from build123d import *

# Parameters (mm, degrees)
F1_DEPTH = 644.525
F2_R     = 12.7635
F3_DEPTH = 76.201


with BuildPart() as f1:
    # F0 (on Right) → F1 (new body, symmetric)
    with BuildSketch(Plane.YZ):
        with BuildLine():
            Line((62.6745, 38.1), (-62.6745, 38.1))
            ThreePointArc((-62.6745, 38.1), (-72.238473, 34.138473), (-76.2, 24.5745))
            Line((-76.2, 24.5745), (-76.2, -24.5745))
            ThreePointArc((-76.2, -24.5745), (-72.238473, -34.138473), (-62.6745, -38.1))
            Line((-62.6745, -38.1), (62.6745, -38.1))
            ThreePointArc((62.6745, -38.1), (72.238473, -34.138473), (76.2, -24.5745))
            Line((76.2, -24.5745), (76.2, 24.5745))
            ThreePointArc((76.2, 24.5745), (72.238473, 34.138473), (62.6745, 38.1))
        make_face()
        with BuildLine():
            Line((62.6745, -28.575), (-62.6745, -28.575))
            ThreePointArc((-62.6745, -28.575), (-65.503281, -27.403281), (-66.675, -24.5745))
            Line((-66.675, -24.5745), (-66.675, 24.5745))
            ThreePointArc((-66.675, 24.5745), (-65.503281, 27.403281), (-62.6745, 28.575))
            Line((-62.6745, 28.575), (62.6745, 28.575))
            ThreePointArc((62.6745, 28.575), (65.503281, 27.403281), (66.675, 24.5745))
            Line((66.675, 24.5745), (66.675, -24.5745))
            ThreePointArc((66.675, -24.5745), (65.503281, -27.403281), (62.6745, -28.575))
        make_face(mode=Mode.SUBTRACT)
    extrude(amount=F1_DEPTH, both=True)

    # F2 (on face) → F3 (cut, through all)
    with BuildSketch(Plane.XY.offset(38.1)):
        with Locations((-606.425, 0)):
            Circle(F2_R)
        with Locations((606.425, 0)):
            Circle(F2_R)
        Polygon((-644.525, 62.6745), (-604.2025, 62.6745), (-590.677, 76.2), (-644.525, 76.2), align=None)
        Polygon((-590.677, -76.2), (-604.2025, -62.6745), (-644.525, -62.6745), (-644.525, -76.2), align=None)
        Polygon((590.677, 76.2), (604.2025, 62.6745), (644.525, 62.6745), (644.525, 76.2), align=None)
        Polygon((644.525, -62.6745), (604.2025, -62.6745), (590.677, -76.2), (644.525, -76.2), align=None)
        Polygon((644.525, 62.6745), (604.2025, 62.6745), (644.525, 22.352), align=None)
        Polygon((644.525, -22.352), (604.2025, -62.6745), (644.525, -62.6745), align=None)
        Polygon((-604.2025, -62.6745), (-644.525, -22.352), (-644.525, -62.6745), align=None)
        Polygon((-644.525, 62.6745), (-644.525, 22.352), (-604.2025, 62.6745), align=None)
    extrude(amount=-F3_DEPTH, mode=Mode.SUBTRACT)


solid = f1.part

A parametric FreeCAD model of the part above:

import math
import FreeCAD as App
import Part
import Sketcher
from FreeCAD import Vector
Q = App.Units.Quantity


def add_polygon(sketch, points):
    """Adds a closed chain of lines whose ends are joined by coincident constraints."""
    first, n = sketch.GeometryCount, len(points)
    for a, b in zip(points, points[1:] + points[:1]):
        sketch.addGeometry(Part.LineSegment(App.Vector(*a, 0), App.Vector(*b, 0)), False)
    for i in range(n):
        sketch.addConstraint(Sketcher.Constraint("Coincident", first + i, 2, first + (i + 1) % n, 1))

doc = App.newDocument("Part")
body = doc.addObject("PartDesign::Body", "Body")

# Sketch on YZ plane
sketch1 = doc.addObject("Sketcher::SketchObject", "Sketch")
body.addObject(sketch1)
sketch1.AttachmentSupport = (doc.YZ_Plane, [""])
sketch1.MapMode = "FlatFace"
sketch1.addGeometry([
    Part.LineSegment(Vector(62.6745, 38.1, 0), Vector(-62.6745, 38.1, 0)),  # 0
    Part.ArcOfCircle(Part.Circle(Vector(-62.674501, 24.574501, 0), Vector(0, 0, 1), 13.525499), math.radians(89.999997), math.radians(180.000003)),  # 1
    Part.LineSegment(Vector(-76.2, 24.5745, 0), Vector(-76.2, -24.5745, 0)),  # 2
    Part.ArcOfCircle(Part.Circle(Vector(-62.674501, -24.574501, 0), Vector(0, 0, 1), 13.525499), math.radians(179.999997), math.radians(270.000003)),  # 3
    Part.LineSegment(Vector(-62.6745, -38.1, 0), Vector(62.6745, -38.1, 0)),  # 4
    Part.ArcOfCircle(Part.Circle(Vector(62.674501, -24.574501, 0), Vector(0, 0, 1), 13.525499), math.radians(-90.000003), math.radians(0.000003)),  # 5
    Part.LineSegment(Vector(76.2, -24.5745, 0), Vector(76.2, 24.5745, 0)),  # 6
    Part.ArcOfCircle(Part.Circle(Vector(62.674501, 24.574501, 0), Vector(0, 0, 1), 13.525499), math.radians(-0.000003), math.radians(90.000003)),  # 7
    Part.ArcOfCircle(Part.Circle(Vector(62.674501, -24.574501, 0), Vector(0, 0, 1), 4.000499), math.radians(-90.000016), math.radians(0.000016)),  # 8
    Part.LineSegment(Vector(62.6745, -28.575, 0), Vector(-62.6745, -28.575, 0)),  # 9
    Part.ArcOfCircle(Part.Circle(Vector(-62.674501, -24.574501, 0), Vector(0, 0, 1), 4.000499), math.radians(179.999984), math.radians(270.000016)),  # 10
    Part.LineSegment(Vector(-66.675, -24.5745, 0), Vector(-66.675, 24.5745, 0)),  # 11
    Part.ArcOfCircle(Part.Circle(Vector(-62.674501, 24.574501, 0), Vector(0, 0, 1), 4.000499), math.radians(89.999984), math.radians(180.000016)),  # 12
    Part.LineSegment(Vector(-62.6745, 28.575, 0), Vector(62.6745, 28.575, 0)),  # 13
    Part.ArcOfCircle(Part.Circle(Vector(62.674501, 24.574501, 0), Vector(0, 0, 1), 4.000499), math.radians(-0.000016), math.radians(90.000016)),  # 14
    Part.LineSegment(Vector(66.675, 24.5745, 0), Vector(66.675, -24.5745, 0)),  # 15
], False)
sketch1.addConstraint([
    Sketcher.Constraint("Tangent", 0, 2, 1, 1),
    Sketcher.Constraint("Tangent", 1, 2, 2, 1),
    Sketcher.Constraint("Tangent", 2, 2, 3, 1),
    Sketcher.Constraint("Tangent", 3, 2, 4, 1),
    Sketcher.Constraint("Tangent", 4, 2, 5, 1),
    Sketcher.Constraint("Tangent", 5, 2, 6, 1),
    Sketcher.Constraint("Tangent", 6, 2, 7, 1),
    Sketcher.Constraint("Tangent", 7, 2, 0, 1),
    Sketcher.Constraint("Tangent", 8, 1, 9, 1),
    Sketcher.Constraint("Tangent", 9, 2, 10, 2),
    Sketcher.Constraint("Tangent", 10, 1, 11, 1),
    Sketcher.Constraint("Tangent", 11, 2, 12, 2),
    Sketcher.Constraint("Tangent", 12, 1, 13, 1),
    Sketcher.Constraint("Tangent", 13, 2, 14, 2),
    Sketcher.Constraint("Tangent", 14, 1, 15, 1),
    Sketcher.Constraint("Tangent", 15, 2, 8, 2),
    Sketcher.Constraint("Horizontal", 0),
    Sketcher.Constraint("Vertical", 2),
    Sketcher.Constraint("Horizontal", 4),
    Sketcher.Constraint("Vertical", 6),
    Sketcher.Constraint("Horizontal", 9),
    Sketcher.Constraint("Vertical", 11),
    Sketcher.Constraint("Horizontal", 13),
    Sketcher.Constraint("Vertical", 15),
    Sketcher.Constraint("Coincident", 8, 3, 5, 3),
    Sketcher.Constraint("Coincident", 10, 3, 3, 3),
    Sketcher.Constraint("Coincident", 12, 3, 1, 3),
    Sketcher.Constraint("Equal", 1, 3),
    Sketcher.Constraint("Equal", 3, 5),
    Sketcher.Constraint("Equal", 5, 7),
    Sketcher.Constraint("Equal", 12, 14),
    Sketcher.Constraint("Symmetric", 1, 3, 5, 3, -1, 1),
    Sketcher.Constraint("DistanceX", 1, 2, -1, 1, Q("3 in")),
    Sketcher.Constraint("DistanceY", -1, 1, 0, 2, Q("1.5 in")),
    Sketcher.Constraint("Radius", 1, Q("0.5325 in")),
    Sketcher.Constraint("Radius", 8, Q("0.1575 in")),
])
pad1 = doc.addObject("PartDesign::Pad", "Pad")
body.addObject(pad1)
pad1.Profile = sketch1
pad1.Length = Q("50.75 in")
pad1.Midplane = True

# Sketch on XY plane
sketch2 = doc.addObject("Sketcher::SketchObject", "Sketch001")
body.addObject(sketch2)
sketch2.AttachmentSupport = (doc.XY_Plane, [""])
sketch2.MapMode = "FlatFace"
sketch2.AttachmentOffset = App.Placement(Vector(0, 0, 1.5 * 25.4), App.Rotation())
sketch2.addGeometry(Part.Circle(Vector(-606.425, 0, 0), Vector(0, 0, 1), 12.7635), False)  # 0
sketch2.addGeometry(Part.Circle(Vector(606.425, 0, 0), Vector(0, 0, 1), 12.7635), False)  # 1
add_polygon(sketch2, [(-590.677, 76.2), (-644.525, 76.2), (-644.525, 22.352)])  # lines 2-4
add_polygon(sketch2, [(-590.677, -76.2), (-644.525, -22.352), (-644.525, -76.2)])  # lines 5-7
add_polygon(sketch2, [(590.677, 76.2), (644.525, 22.352), (644.525, 76.2)])  # lines 8-10
add_polygon(sketch2, [(590.677, -76.2), (644.525, -76.2), (644.525, -22.352)])  # lines 11-13
sketch2.addConstraint([
    Sketcher.Constraint("Horizontal", 2),
    Sketcher.Constraint("Vertical", 3),
    Sketcher.Constraint("Vertical", 6),
    Sketcher.Constraint("Horizontal", 7),
    Sketcher.Constraint("Vertical", 9),
    Sketcher.Constraint("Horizontal", 10),
    Sketcher.Constraint("Horizontal", 11),
    Sketcher.Constraint("Vertical", 12),
    Sketcher.Constraint("Equal", 0, 1),
    Sketcher.Constraint("Symmetric", 0, 3, 1, 3, -1, 1),
    Sketcher.Constraint("Symmetric", 5, 2, 8, 2, -1, 1),
    Sketcher.Constraint("Symmetric", 7, 2, 10, 2, -1, 1),
    Sketcher.Constraint("Symmetric", 2, 2, 11, 2, -1, 1),
    Sketcher.Constraint("Symmetric", 3, 2, 8, 2, -2),
    Sketcher.Constraint("Symmetric", 4, 2, 10, 2, -2),
    Sketcher.Constraint("PointOnObject", 0, 3, -1),
    Sketcher.Constraint("Perpendicular", 4, 5),
    Sketcher.Constraint("Perpendicular", 8, 13),
    Sketcher.Constraint("Horizontal", 5, 2, 12, 2),
    Sketcher.Constraint("Diameter", 0, Q("1.005 in")),
    Sketcher.Constraint("DistanceY", -1, 1, 2, 2, Q("3 in")),
    Sketcher.Constraint("DistanceX", 2, 2, 2, 1, Q("2.12 in")),
    Sketcher.Constraint("DistanceX", 2, 2, 0, 3, Q("1.5 in")),
    Sketcher.Constraint("DistanceX", 0, 3, 1, 3, Q("47.75 in")),
])
pocket1 = doc.addObject("PartDesign::Pocket", "Pocket")
body.addObject(pocket1)
pocket1.Profile = sketch2
pocket1.Type = "ThroughAll"

doc.recompute()
